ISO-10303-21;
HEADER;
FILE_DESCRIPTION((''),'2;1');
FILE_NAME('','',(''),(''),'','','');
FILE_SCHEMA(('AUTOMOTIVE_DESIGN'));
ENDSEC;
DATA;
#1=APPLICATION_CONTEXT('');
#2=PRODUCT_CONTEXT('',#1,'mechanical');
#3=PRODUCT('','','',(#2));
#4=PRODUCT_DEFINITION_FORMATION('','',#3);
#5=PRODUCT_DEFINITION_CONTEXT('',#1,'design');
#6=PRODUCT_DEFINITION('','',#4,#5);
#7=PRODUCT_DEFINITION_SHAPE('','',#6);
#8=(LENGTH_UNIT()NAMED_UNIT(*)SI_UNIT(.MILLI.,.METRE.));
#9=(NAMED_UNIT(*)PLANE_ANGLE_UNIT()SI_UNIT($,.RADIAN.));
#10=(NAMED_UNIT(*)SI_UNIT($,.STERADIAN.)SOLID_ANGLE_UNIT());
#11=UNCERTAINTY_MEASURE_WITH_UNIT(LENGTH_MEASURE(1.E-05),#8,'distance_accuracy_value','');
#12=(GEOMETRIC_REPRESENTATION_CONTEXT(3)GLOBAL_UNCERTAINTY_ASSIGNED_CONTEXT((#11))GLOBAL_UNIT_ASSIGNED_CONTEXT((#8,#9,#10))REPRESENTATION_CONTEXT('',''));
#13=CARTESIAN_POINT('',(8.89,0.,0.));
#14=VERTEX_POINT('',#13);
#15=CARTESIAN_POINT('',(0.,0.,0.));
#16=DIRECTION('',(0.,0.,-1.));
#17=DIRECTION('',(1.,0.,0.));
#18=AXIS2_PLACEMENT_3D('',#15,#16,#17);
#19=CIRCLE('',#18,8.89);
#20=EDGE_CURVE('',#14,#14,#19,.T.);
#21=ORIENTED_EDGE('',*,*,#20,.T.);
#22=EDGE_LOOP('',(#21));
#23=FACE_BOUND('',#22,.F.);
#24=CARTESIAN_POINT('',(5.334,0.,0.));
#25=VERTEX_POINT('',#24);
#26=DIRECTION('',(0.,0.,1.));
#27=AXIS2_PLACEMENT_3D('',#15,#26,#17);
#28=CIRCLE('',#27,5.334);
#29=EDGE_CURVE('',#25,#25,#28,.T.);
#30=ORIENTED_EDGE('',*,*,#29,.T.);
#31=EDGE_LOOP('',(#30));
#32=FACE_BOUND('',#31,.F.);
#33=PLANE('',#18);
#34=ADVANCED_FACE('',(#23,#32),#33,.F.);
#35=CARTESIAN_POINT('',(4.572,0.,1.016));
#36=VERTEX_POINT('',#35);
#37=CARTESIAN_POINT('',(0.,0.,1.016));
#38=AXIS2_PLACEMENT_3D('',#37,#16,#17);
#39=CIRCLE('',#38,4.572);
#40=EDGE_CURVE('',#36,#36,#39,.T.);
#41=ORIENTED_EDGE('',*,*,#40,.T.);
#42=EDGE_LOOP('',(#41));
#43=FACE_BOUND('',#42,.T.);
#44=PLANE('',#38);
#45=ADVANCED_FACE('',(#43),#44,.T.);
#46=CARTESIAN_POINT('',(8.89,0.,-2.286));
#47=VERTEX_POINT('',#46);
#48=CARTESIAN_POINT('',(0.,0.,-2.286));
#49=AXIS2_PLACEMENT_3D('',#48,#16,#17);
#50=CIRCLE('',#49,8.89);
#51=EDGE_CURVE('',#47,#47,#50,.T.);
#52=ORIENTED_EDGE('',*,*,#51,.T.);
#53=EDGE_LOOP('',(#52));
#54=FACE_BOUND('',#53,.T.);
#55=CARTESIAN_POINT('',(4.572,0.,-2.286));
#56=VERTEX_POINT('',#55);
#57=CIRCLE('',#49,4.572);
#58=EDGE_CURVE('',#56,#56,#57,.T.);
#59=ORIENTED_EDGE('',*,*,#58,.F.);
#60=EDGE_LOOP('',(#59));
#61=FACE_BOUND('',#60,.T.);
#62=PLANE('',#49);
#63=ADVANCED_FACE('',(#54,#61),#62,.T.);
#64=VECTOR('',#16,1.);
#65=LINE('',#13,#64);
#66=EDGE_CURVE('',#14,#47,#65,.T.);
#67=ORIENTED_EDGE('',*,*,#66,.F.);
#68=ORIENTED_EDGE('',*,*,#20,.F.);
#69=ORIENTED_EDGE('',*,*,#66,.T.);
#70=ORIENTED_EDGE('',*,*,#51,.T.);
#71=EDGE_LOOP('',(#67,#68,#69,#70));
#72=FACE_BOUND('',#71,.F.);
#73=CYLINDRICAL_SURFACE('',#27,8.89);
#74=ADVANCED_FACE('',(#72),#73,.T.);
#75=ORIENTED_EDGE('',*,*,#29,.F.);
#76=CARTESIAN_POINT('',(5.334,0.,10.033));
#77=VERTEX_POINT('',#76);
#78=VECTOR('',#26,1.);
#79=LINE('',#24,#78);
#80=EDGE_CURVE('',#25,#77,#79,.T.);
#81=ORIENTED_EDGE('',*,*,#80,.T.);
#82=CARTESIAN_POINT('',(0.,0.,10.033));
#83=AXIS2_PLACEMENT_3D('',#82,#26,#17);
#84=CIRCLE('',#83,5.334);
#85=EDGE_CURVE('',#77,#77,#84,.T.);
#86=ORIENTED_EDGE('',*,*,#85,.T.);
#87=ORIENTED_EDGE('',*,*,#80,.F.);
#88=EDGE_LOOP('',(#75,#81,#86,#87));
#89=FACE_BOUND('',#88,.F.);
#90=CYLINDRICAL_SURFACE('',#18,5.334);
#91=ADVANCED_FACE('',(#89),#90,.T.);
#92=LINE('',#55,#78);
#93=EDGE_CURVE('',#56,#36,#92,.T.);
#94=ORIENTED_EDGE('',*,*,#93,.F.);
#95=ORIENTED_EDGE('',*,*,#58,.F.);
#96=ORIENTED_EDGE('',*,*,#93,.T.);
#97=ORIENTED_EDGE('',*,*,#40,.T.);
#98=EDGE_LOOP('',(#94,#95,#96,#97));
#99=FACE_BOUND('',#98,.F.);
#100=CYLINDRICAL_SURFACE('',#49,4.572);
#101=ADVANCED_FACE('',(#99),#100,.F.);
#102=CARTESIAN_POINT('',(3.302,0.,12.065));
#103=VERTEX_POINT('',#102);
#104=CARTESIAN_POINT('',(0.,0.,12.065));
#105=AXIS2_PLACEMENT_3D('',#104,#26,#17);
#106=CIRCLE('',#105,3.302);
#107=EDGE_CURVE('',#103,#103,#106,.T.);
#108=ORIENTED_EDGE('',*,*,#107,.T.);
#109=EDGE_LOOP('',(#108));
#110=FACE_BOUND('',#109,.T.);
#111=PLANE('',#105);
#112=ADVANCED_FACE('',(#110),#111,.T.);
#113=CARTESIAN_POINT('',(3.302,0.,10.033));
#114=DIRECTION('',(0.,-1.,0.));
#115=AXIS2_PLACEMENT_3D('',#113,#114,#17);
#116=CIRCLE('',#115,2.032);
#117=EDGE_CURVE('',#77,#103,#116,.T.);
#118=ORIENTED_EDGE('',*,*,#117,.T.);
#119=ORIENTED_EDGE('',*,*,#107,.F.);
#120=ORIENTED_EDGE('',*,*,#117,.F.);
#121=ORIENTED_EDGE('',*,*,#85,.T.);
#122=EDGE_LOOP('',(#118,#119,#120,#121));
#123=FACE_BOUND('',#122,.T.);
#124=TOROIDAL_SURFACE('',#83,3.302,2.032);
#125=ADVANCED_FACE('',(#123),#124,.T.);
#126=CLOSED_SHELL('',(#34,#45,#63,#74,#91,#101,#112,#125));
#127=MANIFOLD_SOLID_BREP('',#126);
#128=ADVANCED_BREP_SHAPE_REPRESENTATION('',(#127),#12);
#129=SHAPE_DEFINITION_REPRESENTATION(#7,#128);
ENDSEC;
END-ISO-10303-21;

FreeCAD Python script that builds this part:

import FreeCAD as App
import Part
import Sketcher
Q = App.Units.Quantity


def edges_at(feature, points):
    """Names of the edges that pass closest to the given points."""
    edges = feature.Shape.Edges
    near = lambda p: min(range(len(edges)), key=lambda i: edges[i].distToShape(Part.Vertex(*p))[0])
    return sorted({f"Edge{near(p) + 1}" for p in points})

doc = App.newDocument("Part")
body = doc.addObject("PartDesign::Body", "Body")

# Sketch on XY plane
sketch1 = body.newObject("Sketcher::SketchObject", "Sketch")
sketch1.AttachmentSupport = (doc.getObject("XY_Plane"), [""])
sketch1.MapMode = "FlatFace"
sketch1.addGeometry(Part.Circle(App.Vector(0, 0, 0), App.Vector(0, 0, 1), 5), False)
sketch1.addConstraint([
    Sketcher.Constraint("Coincident", 0, 3, -1, 1),
    Sketcher.Constraint("Diameter", 0, Q("0.42 in")),
])
pad1 = body.newObject("PartDesign::Pad", "Pad")
pad1.Profile = sketch1
pad1.Length = Q("0.475 in")

# Sketch on XY plane
sketch2 = body.newObject("Sketcher::SketchObject", "Sketch001")
sketch2.AttachmentSupport = (doc.getObject("XY_Plane"), [""])
sketch2.MapMode = "FlatFace"
sketch2.addGeometry(Part.Circle(App.Vector(0, 0, 0), App.Vector(0, 0, 1), 9), False)
sketch2.addConstraint([
    Sketcher.Constraint("Coincident", 0, 3, -1, 1),
    Sketcher.Constraint("Diameter", 0, Q("0.7 in")),
])
pad2 = body.newObject("PartDesign::Pad", "Pad001")
pad2.Profile = sketch2
pad2.Length = Q("0.09 in")
pad2.Reversed = True

# Sketch on XY plane
sketch3 = body.newObject("Sketcher::SketchObject", "Sketch002")
sketch3.AttachmentSupport = (doc.getObject("XY_Plane"), [""])
sketch3.MapMode = "FlatFace"
sketch3.AttachmentOffset = App.Placement(App.Vector(0, 0, -0.09 * 25.4), App.Rotation())
sketch3.addGeometry(Part.Circle(App.Vector(0, 0, 0), App.Vector(0, 0, 1), 4.6), False)
sketch3.addConstraint([
    Sketcher.Constraint("Coincident", 0, 3, -1, 1),
    Sketcher.Constraint("Diameter", 0, Q("0.36 in")),
])
pocket1 = body.newObject("PartDesign::Pocket", "Pocket")
pocket1.Profile = sketch3
pocket1.Length = Q("0.13 in")
pocket1.Reversed = True
doc.recompute()

fillet = body.newObject("PartDesign::Fillet", "Fillet")
fillet.Base = (pocket1, edges_at(pocket1, [(-5.334, 0, 12.065)]))
fillet.Radius = Q("0.08 in")

doc.recompute()
